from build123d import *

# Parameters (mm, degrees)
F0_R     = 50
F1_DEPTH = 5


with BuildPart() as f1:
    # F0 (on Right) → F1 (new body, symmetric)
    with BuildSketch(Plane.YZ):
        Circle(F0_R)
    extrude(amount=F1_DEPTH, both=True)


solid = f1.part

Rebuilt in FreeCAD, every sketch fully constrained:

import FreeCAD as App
import Part
import Sketcher
from FreeCAD import Vector
Q = App.Units.Quantity

doc = App.newDocument("Part")
body = doc.addObject("PartDesign::Body", "Body")

sketch1 = doc.addObject("Sketcher::SketchObject", "Sketch")
body.addObject(sketch1)
sketch1.AttachmentSupport = (doc.YZ_Plane, [""])
sketch1.MapMode = "FlatFace"
sketch1.addGeometry(Part.Circle(Vector(0, 0, 0), Vector(0, 0, 1), 50), False)
sketch1.addConstraint([
    Sketcher.Constraint("Coincident", 0, 3, -1, 1),
    Sketcher.Constraint("Diameter", 0, Q("100 mm")),
])
pad1 = doc.addObject("PartDesign::Pad", "Pad")
body.addObject(pad1)
pad1.Profile = sketch1
pad1.Length = 10
pad1.Midplane = True

doc.recompute()
